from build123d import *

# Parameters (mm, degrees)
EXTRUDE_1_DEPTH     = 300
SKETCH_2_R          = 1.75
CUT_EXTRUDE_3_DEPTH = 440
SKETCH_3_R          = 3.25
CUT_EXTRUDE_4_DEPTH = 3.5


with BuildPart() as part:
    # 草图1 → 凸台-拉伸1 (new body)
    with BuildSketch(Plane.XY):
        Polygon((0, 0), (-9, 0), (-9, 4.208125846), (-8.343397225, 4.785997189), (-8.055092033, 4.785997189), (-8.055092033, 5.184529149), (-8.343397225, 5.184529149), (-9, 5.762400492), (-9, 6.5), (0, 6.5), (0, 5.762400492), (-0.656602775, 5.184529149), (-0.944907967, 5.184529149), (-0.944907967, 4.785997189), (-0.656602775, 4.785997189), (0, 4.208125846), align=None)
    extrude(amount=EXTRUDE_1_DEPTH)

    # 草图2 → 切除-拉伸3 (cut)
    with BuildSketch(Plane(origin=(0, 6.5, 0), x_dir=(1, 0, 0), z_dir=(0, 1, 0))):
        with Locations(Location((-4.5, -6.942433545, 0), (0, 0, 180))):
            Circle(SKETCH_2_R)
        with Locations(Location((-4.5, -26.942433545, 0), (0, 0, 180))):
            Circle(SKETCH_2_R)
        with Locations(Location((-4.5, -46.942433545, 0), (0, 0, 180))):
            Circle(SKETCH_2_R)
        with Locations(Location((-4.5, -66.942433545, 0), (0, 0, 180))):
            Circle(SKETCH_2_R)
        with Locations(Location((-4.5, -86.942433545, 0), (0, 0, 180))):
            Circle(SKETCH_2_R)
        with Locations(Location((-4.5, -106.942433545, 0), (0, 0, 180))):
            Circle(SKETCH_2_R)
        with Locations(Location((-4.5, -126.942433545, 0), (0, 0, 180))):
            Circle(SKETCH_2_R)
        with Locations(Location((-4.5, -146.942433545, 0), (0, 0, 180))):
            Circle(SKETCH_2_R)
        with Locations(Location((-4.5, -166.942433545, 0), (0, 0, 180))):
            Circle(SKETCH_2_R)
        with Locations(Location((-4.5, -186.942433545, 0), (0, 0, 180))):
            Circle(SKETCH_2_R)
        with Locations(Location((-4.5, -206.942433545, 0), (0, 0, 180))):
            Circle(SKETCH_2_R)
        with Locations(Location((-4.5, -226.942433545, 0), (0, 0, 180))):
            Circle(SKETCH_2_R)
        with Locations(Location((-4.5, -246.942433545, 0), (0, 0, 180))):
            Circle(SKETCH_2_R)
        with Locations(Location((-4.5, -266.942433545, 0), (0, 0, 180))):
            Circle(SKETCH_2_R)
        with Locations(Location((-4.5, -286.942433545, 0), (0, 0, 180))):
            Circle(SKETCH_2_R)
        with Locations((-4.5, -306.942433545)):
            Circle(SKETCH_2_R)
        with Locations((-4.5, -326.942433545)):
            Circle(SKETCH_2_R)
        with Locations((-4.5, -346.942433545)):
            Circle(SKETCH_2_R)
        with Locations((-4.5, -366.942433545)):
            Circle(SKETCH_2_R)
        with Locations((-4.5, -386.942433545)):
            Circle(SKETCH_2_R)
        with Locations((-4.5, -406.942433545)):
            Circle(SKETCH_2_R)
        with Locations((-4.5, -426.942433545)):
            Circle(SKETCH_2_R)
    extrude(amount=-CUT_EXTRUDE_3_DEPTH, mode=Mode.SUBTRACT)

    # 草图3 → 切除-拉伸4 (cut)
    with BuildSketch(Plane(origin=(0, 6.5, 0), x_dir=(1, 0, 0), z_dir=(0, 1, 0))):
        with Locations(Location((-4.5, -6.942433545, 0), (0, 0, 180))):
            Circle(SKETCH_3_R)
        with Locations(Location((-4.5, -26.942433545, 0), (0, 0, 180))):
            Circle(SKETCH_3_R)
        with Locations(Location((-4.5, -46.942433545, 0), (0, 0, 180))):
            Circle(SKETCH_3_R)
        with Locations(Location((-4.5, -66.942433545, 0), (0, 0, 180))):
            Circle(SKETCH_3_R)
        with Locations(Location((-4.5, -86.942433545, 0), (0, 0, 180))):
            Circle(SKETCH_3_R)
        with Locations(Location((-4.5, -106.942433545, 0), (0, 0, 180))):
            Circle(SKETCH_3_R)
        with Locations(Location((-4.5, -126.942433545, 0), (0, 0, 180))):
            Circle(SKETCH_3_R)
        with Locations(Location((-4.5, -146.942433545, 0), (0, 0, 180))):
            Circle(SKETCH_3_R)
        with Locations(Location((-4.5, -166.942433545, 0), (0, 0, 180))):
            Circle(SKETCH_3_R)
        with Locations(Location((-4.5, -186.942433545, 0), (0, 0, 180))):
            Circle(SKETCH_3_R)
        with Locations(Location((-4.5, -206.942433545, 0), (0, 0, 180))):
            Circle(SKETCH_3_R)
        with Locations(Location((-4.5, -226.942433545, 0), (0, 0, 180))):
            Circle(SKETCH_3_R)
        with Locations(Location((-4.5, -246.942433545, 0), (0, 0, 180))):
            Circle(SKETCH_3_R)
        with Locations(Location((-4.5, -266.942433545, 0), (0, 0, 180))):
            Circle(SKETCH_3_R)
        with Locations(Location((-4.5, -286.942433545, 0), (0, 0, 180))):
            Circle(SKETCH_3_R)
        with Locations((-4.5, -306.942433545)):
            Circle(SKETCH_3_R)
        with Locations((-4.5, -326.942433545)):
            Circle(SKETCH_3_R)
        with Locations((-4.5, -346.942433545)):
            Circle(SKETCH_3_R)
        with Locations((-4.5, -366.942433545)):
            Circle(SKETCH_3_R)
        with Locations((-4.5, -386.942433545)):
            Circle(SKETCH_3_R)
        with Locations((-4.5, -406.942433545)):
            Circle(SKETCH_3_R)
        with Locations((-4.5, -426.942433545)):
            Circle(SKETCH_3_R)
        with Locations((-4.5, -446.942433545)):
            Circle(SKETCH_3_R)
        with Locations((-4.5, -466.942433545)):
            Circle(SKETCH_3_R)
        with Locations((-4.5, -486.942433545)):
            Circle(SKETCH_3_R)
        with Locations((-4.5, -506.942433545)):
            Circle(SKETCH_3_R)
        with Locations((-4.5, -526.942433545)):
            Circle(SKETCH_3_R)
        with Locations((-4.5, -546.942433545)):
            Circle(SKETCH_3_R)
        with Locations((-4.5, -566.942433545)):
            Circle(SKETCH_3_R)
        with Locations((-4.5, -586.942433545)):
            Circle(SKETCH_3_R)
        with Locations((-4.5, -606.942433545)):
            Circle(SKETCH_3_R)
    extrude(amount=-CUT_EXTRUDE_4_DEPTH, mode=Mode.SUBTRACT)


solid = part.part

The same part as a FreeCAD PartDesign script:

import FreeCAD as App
import Part
import Sketcher

V = App.Vector
Q = App.Units.Quantity


def add_polygon(sketch, points):
    """Adds a closed chain of lines whose ends are joined by coincident constraints."""
    first, n = sketch.GeometryCount, len(points)
    for a, b in zip(points, points[1:] + points[:1]):
        sketch.addGeometry(Part.LineSegment(App.Vector(*a, 0), App.Vector(*b, 0)), False)
    for i in range(n):
        sketch.addConstraint(Sketcher.Constraint("Coincident", first + i, 2, first + (i + 1) % n, 1))

doc = App.newDocument("Part")
params = doc.addObject("Spreadsheet::Sheet", "Params")
for row, (alias, value) in enumerate([
    ("sketch1_width", "9 mm"),
    ("pad1_length", "300 mm"),
    ("sketch2_diameter", "3.5 mm"),
    ("pocket1_length", "440 mm"),
    ("sketch3_diameter", "6.5 mm"),
    ("pocket2_length", "3.5 mm"),
], start=1):
    params.set(f"A{row}", alias)
    params.set(f"B{row}", "=" + value)
    params.setAlias(f"B{row}", alias)

body = doc.addObject("PartDesign::Body", "Body")

sketch1 = body.newObject("Sketcher::SketchObject", "Sketch")
sketch1.AttachmentSupport = (doc.getObject("XY_Plane"), [""])
sketch1.MapMode = "FlatFace"
add_polygon(sketch1, [(-9, 0), (0, 0), (0, 4.21), (-0.66, 4.79), (-0.94, 4.79), (-0.94, 5.18), (-0.66, 5.18), (0, 5.76), (0, 6.5), (-9, 6.5), (-9, 5.76), (-8.34, 5.18), (-8.06, 5.18), (-8.06, 4.79), (-8.34, 4.79), (-9, 4.21)])
sketch1.addConstraint(Sketcher.Constraint("Horizontal", 0))
sketch1.addConstraint(Sketcher.Constraint("Vertical", 1))
sketch1.addConstraint(Sketcher.Constraint("Horizontal", 3))
sketch1.addConstraint(Sketcher.Constraint("Vertical", 4))
sketch1.addConstraint(Sketcher.Constraint("Horizontal", 5))
sketch1.addConstraint(Sketcher.Constraint("Vertical", 7))
sketch1.addConstraint(Sketcher.Constraint("Horizontal", 8))
sketch1.addConstraint(Sketcher.Constraint("Vertical", 9))
sketch1.addConstraint(Sketcher.Constraint("Horizontal", 11))
sketch1.addConstraint(Sketcher.Constraint("Vertical", 12))
sketch1.addConstraint(Sketcher.Constraint("Horizontal", 13))
sketch1.addConstraint(Sketcher.Constraint("Vertical", 15))
sketch1.addConstraint(Sketcher.Constraint("Coincident", 0, 2, -1, 1))
sketch1.addConstraint(Sketcher.Constraint("PointOnObject", 6, 2, -2))
sketch1.addConstraint(Sketcher.Constraint("Parallel", 2, 10))
sketch1.addConstraint(Sketcher.Constraint("Parallel", 6, 14))
sketch1.addConstraint(Sketcher.Constraint("Horizontal", 6, 2, 9, 2))
sketch1.addConstraint(Sketcher.Constraint("Horizontal", 5, 2, 10, 2))
sketch1.addConstraint(Sketcher.Constraint("Horizontal", 3, 2, 12, 2))
sketch1.addConstraint(Sketcher.Constraint("Horizontal", 1, 2, 14, 2))
sketch1.addConstraint(Sketcher.Constraint("Vertical", 2, 2, 5, 2))
sketch1.addConstraint(Sketcher.Constraint("Vertical", 10, 2, 13, 2))
sketch1.addConstraint(Sketcher.Constraint("Vertical", 9, 2, 14, 2))
sketch1.addConstraint(Sketcher.Constraint("Equal", 5, 11))
sketch1.addConstraint(Sketcher.Constraint("DistanceX", 0, 1, 0, 2, Q("9 mm")))
sketch1.addConstraint(Sketcher.Constraint("DistanceY", -1, 1, 7, 2, Q("6.5 mm")))
sketch1.addConstraint(Sketcher.Constraint("DistanceY", 7, 1, 7, 2, Q("0.7376 mm")))
sketch1.addConstraint(Sketcher.Constraint("DistanceY", 4, 1, 4, 2, Q("0.398532 mm")))
sketch1.addConstraint(Sketcher.Constraint("Distance", 2, Q("0.874679 mm")))
sketch1.addConstraint(Sketcher.Constraint("DistanceX", 3, 2, 3, 1, Q("0.288305 mm")))
sketch1.addConstraint(Sketcher.Constraint("DistanceY", 1, 1, 1, 2, Q("4.208126 mm")))
sketch1.setExpression("Constraints[40]", "Params.sketch1_width")
pad1 = body.newObject("PartDesign::Pad", "Pad")
pad1.Profile = sketch1
pad1.setExpression("Length", "Params.pad1_length")

sketch2 = body.newObject("Sketcher::SketchObject", "Sketch001")
sketch2.AttachmentSupport = (doc.getObject("XZ_Plane"), [""])
sketch2.MapMode = "FlatFace"
sketch2.AttachmentOffset = App.Placement(V(0, 0, -6.5), App.Rotation())
sketch2.addGeometry(Part.Circle(V(-4.5, 6.9, 0), V(0, 0, 1), 1.8), False)
sketch2.addGeometry(Part.Circle(V(-4.5, 26.9, 0), V(0, 0, 1), 1.8), False)
sketch2.addGeometry(Part.Circle(V(-4.5, 46.9, 0), V(0, 0, 1), 1.8), False)
sketch2.addGeometry(Part.Circle(V(-4.5, 66.9, 0), V(0, 0, 1), 1.8), False)
sketch2.addGeometry(Part.Circle(V(-4.5, 86.9, 0), V(0, 0, 1), 1.8), False)
sketch2.addGeometry(Part.Circle(V(-4.5, 106.9, 0), V(0, 0, 1), 1.8), False)
sketch2.addGeometry(Part.Circle(V(-4.5, 126.9, 0), V(0, 0, 1), 1.8), False)
sketch2.addGeometry(Part.Circle(V(-4.5, 146.9, 0), V(0, 0, 1), 1.8), False)
sketch2.addGeometry(Part.Circle(V(-4.5, 166.9, 0), V(0, 0, 1), 1.8), False)
sketch2.addGeometry(Part.Circle(V(-4.5, 186.9, 0), V(0, 0, 1), 1.8), False)
sketch2.addGeometry(Part.Circle(V(-4.5, 206.9, 0), V(0, 0, 1), 1.8), False)
sketch2.addGeometry(Part.Circle(V(-4.5, 226.9, 0), V(0, 0, 1), 1.8), False)
sketch2.addGeometry(Part.Circle(V(-4.5, 246.9, 0), V(0, 0, 1), 1.8), False)
sketch2.addGeometry(Part.Circle(V(-4.5, 266.9, 0), V(0, 0, 1), 1.8), False)
sketch2.addGeometry(Part.Circle(V(-4.5, 286.9, 0), V(0, 0, 1), 1.8), False)
sketch2.addGeometry(Part.Circle(V(-4.5, 306.9, 0), V(0, 0, 1), 1.8), False)
sketch2.addGeometry(Part.Circle(V(-4.5, 326.9, 0), V(0, 0, 1), 1.8), False)
sketch2.addGeometry(Part.Circle(V(-4.5, 346.9, 0), V(0, 0, 1), 1.8), False)
sketch2.addGeometry(Part.Circle(V(-4.5, 366.9, 0), V(0, 0, 1), 1.8), False)
sketch2.addGeometry(Part.Circle(V(-4.5, 386.9, 0), V(0, 0, 1), 1.8), False)
sketch2.addGeometry(Part.Circle(V(-4.5, 406.9, 0), V(0, 0, 1), 1.8), False)
sketch2.addGeometry(Part.Circle(V(-4.5, 426.9, 0), V(0, 0, 1), 1.8), False)
sketch2.addConstraint(Sketcher.Constraint("Equal", 0, 1))
sketch2.addConstraint(Sketcher.Constraint("Equal", 1, 2))
sketch2.addConstraint(Sketcher.Constraint("Equal", 2, 3))
sketch2.addConstraint(Sketcher.Constraint("Equal", 3, 4))
sketch2.addConstraint(Sketcher.Constraint("Equal", 4, 5))
sketch2.addConstraint(Sketcher.Constraint("Equal", 5, 6))
sketch2.addConstraint(Sketcher.Constraint("Equal", 6, 7))
sketch2.addConstraint(Sketcher.Constraint("Equal", 7, 8))
sketch2.addConstraint(Sketcher.Constraint("Equal", 8, 9))
sketch2.addConstraint(Sketcher.Constraint("Equal", 9, 10))
sketch2.addConstraint(Sketcher.Constraint("Equal", 10, 11))
sketch2.addConstraint(Sketcher.Constraint("Equal", 11, 12))
sketch2.addConstraint(Sketcher.Constraint("Equal", 12, 13))
sketch2.addConstraint(Sketcher.Constraint("Equal", 13, 14))
sketch2.addConstraint(Sketcher.Constraint("Equal", 14, 15))
sketch2.addConstraint(Sketcher.Constraint("Equal", 15, 16))
sketch2.addConstraint(Sketcher.Constraint("Equal", 16, 17))
sketch2.addConstraint(Sketcher.Constraint("Equal", 17, 18))
sketch2.addConstraint(Sketcher.Constraint("Equal", 18, 19))
sketch2.addConstraint(Sketcher.Constraint("Equal", 19, 20))
sketch2.addConstraint(Sketcher.Constraint("Equal", 20, 21))
sketch2.addConstraint(Sketcher.Constraint("Vertical", 0, 3, 1, 3))
sketch2.addConstraint(Sketcher.Constraint("Vertical", 1, 3, 2, 3))
sketch2.addConstraint(Sketcher.Constraint("Vertical", 2, 3, 3, 3))
sketch2.addConstraint(Sketcher.Constraint("Vertical", 3, 3, 4, 3))
sketch2.addConstraint(Sketcher.Constraint("Vertical", 4, 3, 5, 3))
sketch2.addConstraint(Sketcher.Constraint("Vertical", 5, 3, 6, 3))
sketch2.addConstraint(Sketcher.Constraint("Vertical", 6, 3, 7, 3))
sketch2.addConstraint(Sketcher.Constraint("Vertical", 7, 3, 8, 3))
sketch2.addConstraint(Sketcher.Constraint("Vertical", 8, 3, 9, 3))
sketch2.addConstraint(Sketcher.Constraint("Vertical", 9, 3, 10, 3))
sketch2.addConstraint(Sketcher.Constraint("Vertical", 10, 3, 11, 3))
sketch2.addConstraint(Sketcher.Constraint("Vertical", 11, 3, 12, 3))
sketch2.addConstraint(Sketcher.Constraint("Vertical", 12, 3, 13, 3))
sketch2.addConstraint(Sketcher.Constraint("Vertical", 13, 3, 14, 3))
sketch2.addConstraint(Sketcher.Constraint("Vertical", 14, 3, 15, 3))
sketch2.addConstraint(Sketcher.Constraint("Vertical", 15, 3, 16, 3))
sketch2.addConstraint(Sketcher.Constraint("Vertical", 16, 3, 17, 3))
sketch2.addConstraint(Sketcher.Constraint("Vertical", 17, 3, 18, 3))
sketch2.addConstraint(Sketcher.Constraint("Vertical", 18, 3, 19, 3))
sketch2.addConstraint(Sketcher.Constraint("Vertical", 19, 3, 20, 3))
sketch2.addConstraint(Sketcher.Constraint("Vertical", 20, 3, 21, 3))
sketch2.addConstraint(Sketcher.Constraint("Diameter", 0, Q("3.5 mm")))
sketch2.addConstraint(Sketcher.Constraint("DistanceY", 0, 3, 1, 3, Q("20 mm")))
sketch2.addConstraint(Sketcher.Constraint("DistanceY", 1, 3, 2, 3, Q("20 mm")))
sketch2.addConstraint(Sketcher.Constraint("DistanceY", 2, 3, 3, 3, Q("20 mm")))
sketch2.addConstraint(Sketcher.Constraint("DistanceY", 3, 3, 4, 3, Q("20 mm")))
sketch2.addConstraint(Sketcher.Constraint("DistanceY", 4, 3, 5, 3, Q("20 mm")))
sketch2.addConstraint(Sketcher.Constraint("DistanceY", 5, 3, 6, 3, Q("20 mm")))
sketch2.addConstraint(Sketcher.Constraint("DistanceY", 6, 3, 7, 3, Q("20 mm")))
sketch2.addConstraint(Sketcher.Constraint("DistanceY", 7, 3, 8, 3, Q("20 mm")))
sketch2.addConstraint(Sketcher.Constraint("DistanceY", 8, 3, 9, 3, Q("20 mm")))
sketch2.addConstraint(Sketcher.Constraint("DistanceY", 9, 3, 10, 3, Q("20 mm")))
sketch2.addConstraint(Sketcher.Constraint("DistanceY", 10, 3, 11, 3, Q("20 mm")))
sketch2.addConstraint(Sketcher.Constraint("DistanceY", 11, 3, 12, 3, Q("20 mm")))
sketch2.addConstraint(Sketcher.Constraint("DistanceY", 12, 3, 13, 3, Q("20 mm")))
sketch2.addConstraint(Sketcher.Constraint("DistanceY", 13, 3, 14, 3, Q("20 mm")))
sketch2.addConstraint(Sketcher.Constraint("DistanceY", 14, 3, 15, 3, Q("20 mm")))
sketch2.addConstraint(Sketcher.Constraint("DistanceY", 15, 3, 16, 3, Q("20 mm")))
sketch2.addConstraint(Sketcher.Constraint("DistanceY", 16, 3, 17, 3, Q("20 mm")))
sketch2.addConstraint(Sketcher.Constraint("DistanceY", 17, 3, 18, 3, Q("20 mm")))
sketch2.addConstraint(Sketcher.Constraint("DistanceY", 18, 3, 19, 3, Q("20 mm")))
sketch2.addConstraint(Sketcher.Constraint("DistanceY", 19, 3, 20, 3, Q("20 mm")))
sketch2.addConstraint(Sketcher.Constraint("DistanceY", 20, 3, 21, 3, Q("20 mm")))
sketch2.addConstraint(Sketcher.Constraint("DistanceX", 0, 3, -1, 1, Q("4.5 mm")))
sketch2.addConstraint(Sketcher.Constraint("DistanceY", -1, 1, 0, 3, Q("6.942434 mm")))
sketch2.setExpression("Constraints[42]", "Params.sketch2_diameter")
pocket1 = body.newObject("PartDesign::Pocket", "Pocket")
pocket1.Profile = sketch2
pocket1.setExpression("Length", "Params.pocket1_length")
pocket1.Reversed = True

sketch3 = body.newObject("Sketcher::SketchObject", "Sketch002")
sketch3.AttachmentSupport = (doc.getObject("XZ_Plane"), [""])
sketch3.MapMode = "FlatFace"
sketch3.AttachmentOffset = App.Placement(V(0, 0, -6.5), App.Rotation())
sketch3.addGeometry(Part.Circle(V(-4.5, 6.9, 0), V(0, 0, 1), 3.2), False)
sketch3.addGeometry(Part.Circle(V(-4.5, 26.9, 0), V(0, 0, 1), 3.2), False)
sketch3.addGeometry(Part.Circle(V(-4.5, 46.9, 0), V(0, 0, 1), 3.2), False)
sketch3.addGeometry(Part.Circle(V(-4.5, 66.9, 0), V(0, 0, 1), 3.2), False)
sketch3.addGeometry(Part.Circle(V(-4.5, 86.9, 0), V(0, 0, 1), 3.2), False)
sketch3.addGeometry(Part.Circle(V(-4.5, 106.9, 0), V(0, 0, 1), 3.2), False)
sketch3.addGeometry(Part.Circle(V(-4.5, 126.9, 0), V(0, 0, 1), 3.2), False)
sketch3.addGeometry(Part.Circle(V(-4.5, 146.9, 0), V(0, 0, 1), 3.2), False)
sketch3.addGeometry(Part.Circle(V(-4.5, 166.9, 0), V(0, 0, 1), 3.2), False)
sketch3.addGeometry(Part.Circle(V(-4.5, 186.9, 0), V(0, 0, 1), 3.2), False)
sketch3.addGeometry(Part.Circle(V(-4.5, 206.9, 0), V(0, 0, 1), 3.2), False)
sketch3.addGeometry(Part.Circle(V(-4.5, 226.9, 0), V(0, 0, 1), 3.2), False)
sketch3.addGeometry(Part.Circle(V(-4.5, 246.9, 0), V(0, 0, 1), 3.2), False)
sketch3.addGeometry(Part.Circle(V(-4.5, 266.9, 0), V(0, 0, 1), 3.2), False)
sketch3.addGeometry(Part.Circle(V(-4.5, 286.9, 0), V(0, 0, 1), 3.2), False)
sketch3.addGeometry(Part.Circle(V(-4.5, 306.9, 0), V(0, 0, 1), 3.2), False)
sketch3.addGeometry(Part.Circle(V(-4.5, 326.9, 0), V(0, 0, 1), 3.2), False)
sketch3.addGeometry(Part.Circle(V(-4.5, 346.9, 0), V(0, 0, 1), 3.2), False)
sketch3.addGeometry(Part.Circle(V(-4.5, 366.9, 0), V(0, 0, 1), 3.2), False)
sketch3.addGeometry(Part.Circle(V(-4.5, 386.9, 0), V(0, 0, 1), 3.2), False)
sketch3.addGeometry(Part.Circle(V(-4.5, 406.9, 0), V(0, 0, 1), 3.2), False)
sketch3.addGeometry(Part.Circle(V(-4.5, 426.9, 0), V(0, 0, 1), 3.2), False)
sketch3.addGeometry(Part.Circle(V(-4.5, 446.9, 0), V(0, 0, 1), 3.2), False)
sketch3.addGeometry(Part.Circle(V(-4.5, 466.9, 0), V(0, 0, 1), 3.2), False)
sketch3.addGeometry(Part.Circle(V(-4.5, 486.9, 0), V(0, 0, 1), 3.2), False)
sketch3.addGeometry(Part.Circle(V(-4.5, 506.9, 0), V(0, 0, 1), 3.2), False)
sketch3.addGeometry(Part.Circle(V(-4.5, 526.9, 0), V(0, 0, 1), 3.2), False)
sketch3.addGeometry(Part.Circle(V(-4.5, 546.9, 0), V(0, 0, 1), 3.2), False)
sketch3.addGeometry(Part.Circle(V(-4.5, 566.9, 0), V(0, 0, 1), 3.2), False)
sketch3.addGeometry(Part.Circle(V(-4.5, 586.9, 0), V(0, 0, 1), 3.2), False)
sketch3.addGeometry(Part.Circle(V(-4.5, 606.9, 0), V(0, 0, 1), 3.2), False)
sketch3.addConstraint(Sketcher.Constraint("Equal", 0, 1))
sketch3.addConstraint(Sketcher.Constraint("Equal", 1, 2))
sketch3.addConstraint(Sketcher.Constraint("Equal", 2, 3))
sketch3.addConstraint(Sketcher.Constraint("Equal", 3, 4))
sketch3.addConstraint(Sketcher.Constraint("Equal", 4, 5))
sketch3.addConstraint(Sketcher.Constraint("Equal", 5, 6))
sketch3.addConstraint(Sketcher.Constraint("Equal", 6, 7))
sketch3.addConstraint(Sketcher.Constraint("Equal", 7, 8))
sketch3.addConstraint(Sketcher.Constraint("Equal", 8, 9))
sketch3.addConstraint(Sketcher.Constraint("Equal", 9, 10))
sketch3.addConstraint(Sketcher.Constraint("Equal", 10, 11))
sketch3.addConstraint(Sketcher.Constraint("Equal", 11, 12))
sketch3.addConstraint(Sketcher.Constraint("Equal", 12, 13))
sketch3.addConstraint(Sketcher.Constraint("Equal", 13, 14))
sketch3.addConstraint(Sketcher.Constraint("Equal", 14, 15))
sketch3.addConstraint(Sketcher.Constraint("Equal", 15, 16))
sketch3.addConstraint(Sketcher.Constraint("Equal", 16, 17))
sketch3.addConstraint(Sketcher.Constraint("Equal", 17, 18))
sketch3.addConstraint(Sketcher.Constraint("Equal", 18, 19))
sketch3.addConstraint(Sketcher.Constraint("Equal", 19, 20))
sketch3.addConstraint(Sketcher.Constraint("Equal", 20, 21))
sketch3.addConstraint(Sketcher.Constraint("Equal", 21, 22))
sketch3.addConstraint(Sketcher.Constraint("Equal", 22, 23))
sketch3.addConstraint(Sketcher.Constraint("Equal", 23, 24))
sketch3.addConstraint(Sketcher.Constraint("Equal", 24, 25))
sketch3.addConstraint(Sketcher.Constraint("Equal", 25, 26))
sketch3.addConstraint(Sketcher.Constraint("Equal", 26, 27))
sketch3.addConstraint(Sketcher.Constraint("Equal", 27, 28))
sketch3.addConstraint(Sketcher.Constraint("Equal", 28, 29))
sketch3.addConstraint(Sketcher.Constraint("Equal", 29, 30))
sketch3.addConstraint(Sketcher.Constraint("Vertical", 0, 3, 1, 3))
sketch3.addConstraint(Sketcher.Constraint("Vertical", 1, 3, 2, 3))
sketch3.addConstraint(Sketcher.Constraint("Vertical", 2, 3, 3, 3))
sketch3.addConstraint(Sketcher.Constraint("Vertical", 3, 3, 4, 3))
sketch3.addConstraint(Sketcher.Constraint("Vertical", 4, 3, 5, 3))
sketch3.addConstraint(Sketcher.Constraint("Vertical", 5, 3, 6, 3))
sketch3.addConstraint(Sketcher.Constraint("Vertical", 6, 3, 7, 3))
sketch3.addConstraint(Sketcher.Constraint("Vertical", 7, 3, 8, 3))
sketch3.addConstraint(Sketcher.Constraint("Vertical", 8, 3, 9, 3))
sketch3.addConstraint(Sketcher.Constraint("Vertical", 9, 3, 10, 3))
sketch3.addConstraint(Sketcher.Constraint("Vertical", 10, 3, 11, 3))
sketch3.addConstraint(Sketcher.Constraint("Vertical", 11, 3, 12, 3))
sketch3.addConstraint(Sketcher.Constraint("Vertical", 12, 3, 13, 3))
sketch3.addConstraint(Sketcher.Constraint("Vertical", 13, 3, 14, 3))
sketch3.addConstraint(Sketcher.Constraint("Vertical", 14, 3, 15, 3))
sketch3.addConstraint(Sketcher.Constraint("Vertical", 15, 3, 16, 3))
sketch3.addConstraint(Sketcher.Constraint("Vertical", 16, 3, 17, 3))
sketch3.addConstraint(Sketcher.Constraint("Vertical", 17, 3, 18, 3))
sketch3.addConstraint(Sketcher.Constraint("Vertical", 18, 3, 19, 3))
sketch3.addConstraint(Sketcher.Constraint("Vertical", 19, 3, 20, 3))
sketch3.addConstraint(Sketcher.Constraint("Vertical", 20, 3, 21, 3))
sketch3.addConstraint(Sketcher.Constraint("Vertical", 21, 3, 22, 3))
sketch3.addConstraint(Sketcher.Constraint("Vertical", 22, 3, 23, 3))
sketch3.addConstraint(Sketcher.Constraint("Vertical", 23, 3, 24, 3))
sketch3.addConstraint(Sketcher.Constraint("Vertical", 24, 3, 25, 3))
sketch3.addConstraint(Sketcher.Constraint("Vertical", 25, 3, 26, 3))
sketch3.addConstraint(Sketcher.Constraint("Vertical", 26, 3, 27, 3))
sketch3.addConstraint(Sketcher.Constraint("Vertical", 27, 3, 28, 3))
sketch3.addConstraint(Sketcher.Constraint("Vertical", 28, 3, 29, 3))
sketch3.addConstraint(Sketcher.Constraint("Vertical", 29, 3, 30, 3))
sketch3.addConstraint(Sketcher.Constraint("Diameter", 0, Q("6.5 mm")))
sketch3.addConstraint(Sketcher.Constraint("DistanceY", 0, 3, 1, 3, Q("20 mm")))
sketch3.addConstraint(Sketcher.Constraint("DistanceY", 1, 3, 2, 3, Q("20 mm")))
sketch3.addConstraint(Sketcher.Constraint("DistanceY", 2, 3, 3, 3, Q("20 mm")))
sketch3.addConstraint(Sketcher.Constraint("DistanceY", 3, 3, 4, 3, Q("20 mm")))
sketch3.addConstraint(Sketcher.Constraint("DistanceY", 4, 3, 5, 3, Q("20 mm")))
sketch3.addConstraint(Sketcher.Constraint("DistanceY", 5, 3, 6, 3, Q("20 mm")))
sketch3.addConstraint(Sketcher.Constraint("DistanceY", 6, 3, 7, 3, Q("20 mm")))
sketch3.addConstraint(Sketcher.Constraint("DistanceY", 7, 3, 8, 3, Q("20 mm")))
sketch3.addConstraint(Sketcher.Constraint("DistanceY", 8, 3, 9, 3, Q("20 mm")))
sketch3.addConstraint(Sketcher.Constraint("DistanceY", 9, 3, 10, 3, Q("20 mm")))
sketch3.addConstraint(Sketcher.Constraint("DistanceY", 10, 3, 11, 3, Q("20 mm")))
sketch3.addConstraint(Sketcher.Constraint("DistanceY", 11, 3, 12, 3, Q("20 mm")))
sketch3.addConstraint(Sketcher.Constraint("DistanceY", 12, 3, 13, 3, Q("20 mm")))
sketch3.addConstraint(Sketcher.Constraint("DistanceY", 13, 3, 14, 3, Q("20 mm")))
sketch3.addConstraint(Sketcher.Constraint("DistanceY", 14, 3, 15, 3, Q("20 mm")))
sketch3.addConstraint(Sketcher.Constraint("DistanceY", 15, 3, 16, 3, Q("20 mm")))
sketch3.addConstraint(Sketcher.Constraint("DistanceY", 16, 3, 17, 3, Q("20 mm")))
sketch3.addConstraint(Sketcher.Constraint("DistanceY", 17, 3, 18, 3, Q("20 mm")))
sketch3.addConstraint(Sketcher.Constraint("DistanceY", 18, 3, 19, 3, Q("20 mm")))
sketch3.addConstraint(Sketcher.Constraint("DistanceY", 19, 3, 20, 3, Q("20 mm")))
sketch3.addConstraint(Sketcher.Constraint("DistanceY", 20, 3, 21, 3, Q("20 mm")))
sketch3.addConstraint(Sketcher.Constraint("DistanceY", 21, 3, 22, 3, Q("20 mm")))
sketch3.addConstraint(Sketcher.Constraint("DistanceY", 22, 3, 23, 3, Q("20 mm")))
sketch3.addConstraint(Sketcher.Constraint("DistanceY", 23, 3, 24, 3, Q("20 mm")))
sketch3.addConstraint(Sketcher.Constraint("DistanceY", 24, 3, 25, 3, Q("20 mm")))
sketch3.addConstraint(Sketcher.Constraint("DistanceY", 25, 3, 26, 3, Q("20 mm")))
sketch3.addConstraint(Sketcher.Constraint("DistanceY", 26, 3, 27, 3, Q("20 mm")))
sketch3.addConstraint(Sketcher.Constraint("DistanceY", 27, 3, 28, 3, Q("20 mm")))
sketch3.addConstraint(Sketcher.Constraint("DistanceY", 28, 3, 29, 3, Q("20 mm")))
sketch3.addConstraint(Sketcher.Constraint("DistanceY", 29, 3, 30, 3, Q("20 mm")))
sketch3.addConstraint(Sketcher.Constraint("DistanceX", 0, 3, -1, 1, Q("4.5 mm")))
sketch3.addConstraint(Sketcher.Constraint("DistanceY", -1, 1, 0, 3, Q("6.942434 mm")))
sketch3.setExpression("Constraints[60]", "Params.sketch3_diameter")
pocket2 = body.newObject("PartDesign::Pocket", "Pocket001")
pocket2.Profile = sketch3
pocket2.setExpression("Length", "Params.pocket2_length")
pocket2.Reversed = True

doc.recompute()
